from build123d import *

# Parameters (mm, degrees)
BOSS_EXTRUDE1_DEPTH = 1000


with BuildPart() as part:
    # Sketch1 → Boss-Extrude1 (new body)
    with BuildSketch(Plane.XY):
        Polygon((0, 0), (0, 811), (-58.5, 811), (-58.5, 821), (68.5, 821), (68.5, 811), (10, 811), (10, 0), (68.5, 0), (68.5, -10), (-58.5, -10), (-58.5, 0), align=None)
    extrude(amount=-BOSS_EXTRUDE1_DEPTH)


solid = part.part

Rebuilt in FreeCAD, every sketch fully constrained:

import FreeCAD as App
import Part
import Sketcher

V = App.Vector
Q = App.Units.Quantity


def add_polygon(sketch, points):
    """Adds a closed chain of lines whose ends are joined by coincident constraints."""
    first, n = sketch.GeometryCount, len(points)
    for a, b in zip(points, points[1:] + points[:1]):
        sketch.addGeometry(Part.LineSegment(App.Vector(*a, 0), App.Vector(*b, 0)), False)
    for i in range(n):
        sketch.addConstraint(Sketcher.Constraint("Coincident", first + i, 2, first + (i + 1) % n, 1))

doc = App.newDocument("Part")
params = doc.addObject("Spreadsheet::Sheet", "Params")
for row, (alias, value) in enumerate([
    ("sketch1_width", "127 mm"),
    ("sketch1_height", "811 mm"),
    ("sketch1_height2", "10 mm"),
    ("sketch1_width2", "58.5 mm"),
    ("pad1_length", "1000 mm"),
], start=1):
    params.set(f"A{row}", alias)
    params.set(f"B{row}", "=" + value)
    params.setAlias(f"B{row}", alias)

body = doc.addObject("PartDesign::Body", "Body")

# Sketch on XY plane
sketch1 = body.newObject("Sketcher::SketchObject", "Sketch")
sketch1.AttachmentSupport = (doc.getObject("XY_Plane"), [""])
sketch1.MapMode = "FlatFace"
add_polygon(sketch1, [(0, 811), (0, 0), (-58.5, 0), (-58.5, -10), (68.5, -10), (68.5, 0), (10, 0), (10, 811), (68.5, 811), (68.5, 821), (-58.5, 821), (-58.5, 811)])  # lines 0-11
sketch1.addConstraint([
    Sketcher.Constraint("Vertical", 0),
    Sketcher.Constraint("Horizontal", 1),
    Sketcher.Constraint("Vertical", 2),
    Sketcher.Constraint("Horizontal", 3),
    Sketcher.Constraint("Vertical", 4),
    Sketcher.Constraint("Horizontal", 5),
    Sketcher.Constraint("Vertical", 6),
    Sketcher.Constraint("Horizontal", 7),
    Sketcher.Constraint("Vertical", 8),
    Sketcher.Constraint("Horizontal", 9),
    Sketcher.Constraint("Vertical", 10),
    Sketcher.Constraint("Horizontal", 11),
    Sketcher.Constraint("Coincident", 0, 2, -1, 1),
    Sketcher.Constraint("PointOnObject", 4, 2, -1),
    Sketcher.Constraint("Horizontal", 7, 2, 10, 2),
    Sketcher.Constraint("Vertical", 4, 2, 7, 2),
    Sketcher.Constraint("Vertical", 2, 2, 9, 2),
    Sketcher.Constraint("Equal", 1, 5),
    Sketcher.Constraint("Equal", 4, 8),
    Sketcher.Constraint("DistanceX", 3, 1, 3, 2, Q("127 mm")),
    Sketcher.Constraint("DistanceY", 0, 2, 0, 1, Q("811 mm")),
    Sketcher.Constraint("DistanceY", 2, 2, 2, 1, Q("10 mm")),
    Sketcher.Constraint("DistanceX", 1, 2, 1, 1, Q("58.5 mm")),
])
sketch1.setExpression("Constraints[31]", "Params.sketch1_width")
sketch1.setExpression("Constraints[32]", "Params.sketch1_height")
sketch1.setExpression("Constraints[33]", "Params.sketch1_height2")
sketch1.setExpression("Constraints[34]", "Params.sketch1_width2")
pad1 = body.newObject("PartDesign::Pad", "Pad")
pad1.Profile = sketch1
pad1.setExpression("Length", "Params.pad1_length")
pad1.Reversed = True

doc.recompute()
